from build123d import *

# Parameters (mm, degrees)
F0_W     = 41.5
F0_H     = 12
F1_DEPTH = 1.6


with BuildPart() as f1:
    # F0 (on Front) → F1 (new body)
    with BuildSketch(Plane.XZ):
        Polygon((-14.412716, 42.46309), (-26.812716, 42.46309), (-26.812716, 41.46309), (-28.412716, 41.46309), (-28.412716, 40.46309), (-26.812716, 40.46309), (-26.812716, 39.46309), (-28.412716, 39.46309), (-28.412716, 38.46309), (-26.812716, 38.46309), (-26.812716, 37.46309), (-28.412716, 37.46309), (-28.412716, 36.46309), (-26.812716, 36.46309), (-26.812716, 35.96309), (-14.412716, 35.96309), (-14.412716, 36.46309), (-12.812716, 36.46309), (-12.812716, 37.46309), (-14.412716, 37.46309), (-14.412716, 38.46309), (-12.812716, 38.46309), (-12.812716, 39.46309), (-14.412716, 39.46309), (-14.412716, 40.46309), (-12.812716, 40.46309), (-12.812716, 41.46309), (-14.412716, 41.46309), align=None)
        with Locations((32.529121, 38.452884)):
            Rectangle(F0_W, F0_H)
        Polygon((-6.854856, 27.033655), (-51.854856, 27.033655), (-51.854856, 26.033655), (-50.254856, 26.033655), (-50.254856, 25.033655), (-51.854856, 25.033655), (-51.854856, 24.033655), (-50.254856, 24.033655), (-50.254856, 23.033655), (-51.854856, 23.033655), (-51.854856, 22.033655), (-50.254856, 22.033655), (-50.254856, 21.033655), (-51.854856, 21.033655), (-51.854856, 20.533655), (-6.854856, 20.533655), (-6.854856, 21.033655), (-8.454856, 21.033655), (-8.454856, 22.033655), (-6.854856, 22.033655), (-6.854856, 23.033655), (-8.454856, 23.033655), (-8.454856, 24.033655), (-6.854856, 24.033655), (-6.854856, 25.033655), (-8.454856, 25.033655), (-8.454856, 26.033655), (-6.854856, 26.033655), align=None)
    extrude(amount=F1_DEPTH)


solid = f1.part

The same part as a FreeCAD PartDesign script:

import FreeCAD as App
import Part
import Sketcher

V = App.Vector

doc = App.newDocument("Part")
body = doc.addObject("PartDesign::Body", "Body")
body.AllowCompound = True

sketch1 = doc.addObject("Sketcher::SketchObject", "Sketch")
body.addObject(sketch1)
sketch1.AttachmentSupport = (doc.XZ_Plane, [""])
sketch1.MapMode = "FlatFace"
sketch1.addGeometry([
    Part.LineSegment(V(-14.4, 42.5, 0), V(-26.8, 42.5, 0)),
    Part.LineSegment(V(-26.8, 42.5, 0), V(-26.8, 41.5, 0)),
    Part.LineSegment(V(-26.8, 41.5, 0), V(-28.4, 41.5, 0)),
    Part.LineSegment(V(-28.4, 41.5, 0), V(-28.4, 40.5, 0)),
    Part.LineSegment(V(-28.4, 40.5, 0), V(-26.8, 40.5, 0)),
    Part.LineSegment(V(-26.8, 40.5, 0), V(-26.8, 39.5, 0)),
    Part.LineSegment(V(-26.8, 39.5, 0), V(-28.4, 39.5, 0)),
    Part.LineSegment(V(-28.4, 39.5, 0), V(-28.4, 38.5, 0)),
    Part.LineSegment(V(-28.4, 38.5, 0), V(-26.8, 38.5, 0)),
    Part.LineSegment(V(-26.8, 38.5, 0), V(-26.8, 37.5, 0)),
    Part.LineSegment(V(-26.8, 37.5, 0), V(-28.4, 37.5, 0)),
    Part.LineSegment(V(-28.4, 37.5, 0), V(-28.4, 36.5, 0)),
    Part.LineSegment(V(-28.4, 36.5, 0), V(-26.8, 36.5, 0)),
    Part.LineSegment(V(-26.8, 36.5, 0), V(-26.8, 36, 0)),
    Part.LineSegment(V(-26.8, 36, 0), V(-14.4, 36, 0)),
    Part.LineSegment(V(-14.4, 36, 0), V(-14.4, 36.5, 0)),
    Part.LineSegment(V(-14.4, 36.5, 0), V(-12.8, 36.5, 0)),
    Part.LineSegment(V(-12.8, 36.5, 0), V(-12.8, 37.5, 0)),
    Part.LineSegment(V(-12.8, 37.5, 0), V(-14.4, 37.5, 0)),
    Part.LineSegment(V(-14.4, 37.5, 0), V(-14.4, 38.5, 0)),
    Part.LineSegment(V(-14.4, 38.5, 0), V(-12.8, 38.5, 0)),
    Part.LineSegment(V(-12.8, 38.5, 0), V(-12.8, 39.5, 0)),
    Part.LineSegment(V(-12.8, 39.5, 0), V(-14.4, 39.5, 0)),
    Part.LineSegment(V(-14.4, 39.5, 0), V(-14.4, 40.5, 0)),
    Part.LineSegment(V(-14.4, 40.5, 0), V(-12.8, 40.5, 0)),
    Part.LineSegment(V(-12.8, 40.5, 0), V(-12.8, 41.5, 0)),
    Part.LineSegment(V(-12.8, 41.5, 0), V(-14.4, 41.5, 0)),
    Part.LineSegment(V(-14.4, 41.5, 0), V(-14.4, 42.5, 0)),
    Part.LineSegment(V(11.8, 44.5, 0), V(11.8, 32.5, 0)),
    Part.LineSegment(V(11.8, 32.5, 0), V(53.3, 32.5, 0)),
    Part.LineSegment(V(53.3, 32.5, 0), V(53.3, 44.5, 0)),
    Part.LineSegment(V(53.3, 44.5, 0), V(11.8, 44.5, 0)),
    Part.LineSegment(V(-6.9, 27, 0), V(-51.9, 27, 0)),
    Part.LineSegment(V(-51.9, 27, 0), V(-51.9, 26, 0)),
    Part.LineSegment(V(-51.9, 26, 0), V(-50.3, 26, 0)),
    Part.LineSegment(V(-50.3, 26, 0), V(-50.3, 25, 0)),
    Part.LineSegment(V(-50.3, 25, 0), V(-51.9, 25, 0)),
    Part.LineSegment(V(-51.9, 25, 0), V(-51.9, 24, 0)),
    Part.LineSegment(V(-51.9, 24, 0), V(-50.3, 24, 0)),
    Part.LineSegment(V(-50.3, 24, 0), V(-50.3, 23, 0)),
    Part.LineSegment(V(-50.3, 23, 0), V(-51.9, 23, 0)),
    Part.LineSegment(V(-51.9, 23, 0), V(-51.9, 22, 0)),
    Part.LineSegment(V(-51.9, 22, 0), V(-50.3, 22, 0)),
    Part.LineSegment(V(-50.3, 22, 0), V(-50.3, 21, 0)),
    Part.LineSegment(V(-50.3, 21, 0), V(-51.9, 21, 0)),
    Part.LineSegment(V(-51.9, 21, 0), V(-51.9, 20.5, 0)),
    Part.LineSegment(V(-51.9, 20.5, 0), V(-6.9, 20.5, 0)),
    Part.LineSegment(V(-6.9, 20.5, 0), V(-6.9, 21, 0)),
    Part.LineSegment(V(-6.9, 21, 0), V(-8.5, 21, 0)),
    Part.LineSegment(V(-8.5, 21, 0), V(-8.5, 22, 0)),
    Part.LineSegment(V(-8.5, 22, 0), V(-6.9, 22, 0)),
    Part.LineSegment(V(-6.9, 22, 0), V(-6.9, 23, 0)),
    Part.LineSegment(V(-6.9, 23, 0), V(-8.5, 23, 0)),
    Part.LineSegment(V(-8.5, 23, 0), V(-8.5, 24, 0)),
    Part.LineSegment(V(-8.5, 24, 0), V(-6.9, 24, 0)),
    Part.LineSegment(V(-6.9, 24, 0), V(-6.9, 25, 0)),
    Part.LineSegment(V(-6.9, 25, 0), V(-8.5, 25, 0)),
    Part.LineSegment(V(-8.5, 25, 0), V(-8.5, 26, 0)),
    Part.LineSegment(V(-8.5, 26, 0), V(-6.9, 26, 0)),
    Part.LineSegment(V(-6.9, 26, 0), V(-6.9, 27, 0)),
], False)
sketch1.addConstraint([
    Sketcher.Constraint("Coincident", 0, 2, 1, 1),
    Sketcher.Constraint("Coincident", 1, 2, 2, 1),
    Sketcher.Constraint("Coincident", 2, 2, 3, 1),
    Sketcher.Constraint("Coincident", 3, 2, 4, 1),
    Sketcher.Constraint("Coincident", 4, 2, 5, 1),
    Sketcher.Constraint("Coincident", 5, 2, 6, 1),
    Sketcher.Constraint("Coincident", 6, 2, 7, 1),
    Sketcher.Constraint("Coincident", 7, 2, 8, 1),
    Sketcher.Constraint("Coincident", 8, 2, 9, 1),
    Sketcher.Constraint("Coincident", 9, 2, 10, 1),
    Sketcher.Constraint("Coincident", 10, 2, 11, 1),
    Sketcher.Constraint("Coincident", 11, 2, 12, 1),
    Sketcher.Constraint("Coincident", 12, 2, 13, 1),
    Sketcher.Constraint("Coincident", 13, 2, 14, 1),
    Sketcher.Constraint("Coincident", 14, 2, 15, 1),
    Sketcher.Constraint("Coincident", 15, 2, 16, 1),
    Sketcher.Constraint("Coincident", 16, 2, 17, 1),
    Sketcher.Constraint("Coincident", 17, 2, 18, 1),
    Sketcher.Constraint("Coincident", 18, 2, 19, 1),
    Sketcher.Constraint("Coincident", 19, 2, 20, 1),
    Sketcher.Constraint("Coincident", 20, 2, 21, 1),
    Sketcher.Constraint("Coincident", 21, 2, 22, 1),
    Sketcher.Constraint("Coincident", 22, 2, 23, 1),
    Sketcher.Constraint("Coincident", 23, 2, 24, 1),
    Sketcher.Constraint("Coincident", 24, 2, 25, 1),
    Sketcher.Constraint("Coincident", 25, 2, 26, 1),
    Sketcher.Constraint("Coincident", 26, 2, 27, 1),
    Sketcher.Constraint("Coincident", 27, 2, 0, 1),
    Sketcher.Constraint("Coincident", 28, 2, 29, 1),
    Sketcher.Constraint("Coincident", 29, 2, 30, 1),
    Sketcher.Constraint("Coincident", 30, 2, 31, 1),
    Sketcher.Constraint("Coincident", 31, 2, 28, 1),
    Sketcher.Constraint("Coincident", 32, 2, 33, 1),
    Sketcher.Constraint("Coincident", 33, 2, 34, 1),
    Sketcher.Constraint("Coincident", 34, 2, 35, 1),
    Sketcher.Constraint("Coincident", 35, 2, 36, 1),
    Sketcher.Constraint("Coincident", 36, 2, 37, 1),
    Sketcher.Constraint("Coincident", 37, 2, 38, 1),
    Sketcher.Constraint("Coincident", 38, 2, 39, 1),
    Sketcher.Constraint("Coincident", 39, 2, 40, 1),
    Sketcher.Constraint("Coincident", 40, 2, 41, 1),
    Sketcher.Constraint("Coincident", 41, 2, 42, 1),
    Sketcher.Constraint("Coincident", 42, 2, 43, 1),
    Sketcher.Constraint("Coincident", 43, 2, 44, 1),
    Sketcher.Constraint("Coincident", 44, 2, 45, 1),
    Sketcher.Constraint("Coincident", 45, 2, 46, 1),
    Sketcher.Constraint("Coincident", 46, 2, 47, 1),
    Sketcher.Constraint("Coincident", 47, 2, 48, 1),
    Sketcher.Constraint("Coincident", 48, 2, 49, 1),
    Sketcher.Constraint("Coincident", 49, 2, 50, 1),
    Sketcher.Constraint("Coincident", 50, 2, 51, 1),
    Sketcher.Constraint("Coincident", 51, 2, 52, 1),
    Sketcher.Constraint("Coincident", 52, 2, 53, 1),
    Sketcher.Constraint("Coincident", 53, 2, 54, 1),
    Sketcher.Constraint("Coincident", 54, 2, 55, 1),
    Sketcher.Constraint("Coincident", 55, 2, 56, 1),
    Sketcher.Constraint("Coincident", 56, 2, 57, 1),
    Sketcher.Constraint("Coincident", 57, 2, 58, 1),
    Sketcher.Constraint("Coincident", 58, 2, 59, 1),
    Sketcher.Constraint("Coincident", 59, 2, 32, 1),
    Sketcher.Constraint("Horizontal", 0),
    Sketcher.Constraint("Vertical", 1),
    Sketcher.Constraint("Horizontal", 2),
    Sketcher.Constraint("Vertical", 3),
    Sketcher.Constraint("Horizontal", 4),
    Sketcher.Constraint("Vertical", 5),
    Sketcher.Constraint("Horizontal", 6),
    Sketcher.Constraint("Vertical", 7),
    Sketcher.Constraint("Horizontal", 8),
    Sketcher.Constraint("Vertical", 9),
    Sketcher.Constraint("Horizontal", 10),
    Sketcher.Constraint("Vertical", 11),
    Sketcher.Constraint("Horizontal", 12),
    Sketcher.Constraint("Vertical", 13),
    Sketcher.Constraint("Horizontal", 14),
    Sketcher.Constraint("Vertical", 15),
    Sketcher.Constraint("Horizontal", 16),
    Sketcher.Constraint("Vertical", 17),
    Sketcher.Constraint("Horizontal", 18),
    Sketcher.Constraint("Vertical", 19),
    Sketcher.Constraint("Horizontal", 20),
    Sketcher.Constraint("Vertical", 21),
    Sketcher.Constraint("Horizontal", 22),
    Sketcher.Constraint("Vertical", 23),
    Sketcher.Constraint("Horizontal", 24),
    Sketcher.Constraint("Vertical", 25),
    Sketcher.Constraint("Horizontal", 26),
    Sketcher.Constraint("Vertical", 27),
    Sketcher.Constraint("Vertical", 28),
    Sketcher.Constraint("Horizontal", 29),
    Sketcher.Constraint("Vertical", 30),
    Sketcher.Constraint("Horizontal", 31),
    Sketcher.Constraint("Horizontal", 32),
    Sketcher.Constraint("Vertical", 33),
    Sketcher.Constraint("Horizontal", 34),
    Sketcher.Constraint("Vertical", 35),
    Sketcher.Constraint("Horizontal", 36),
    Sketcher.Constraint("Vertical", 37),
    Sketcher.Constraint("Horizontal", 38),
    Sketcher.Constraint("Vertical", 39),
    Sketcher.Constraint("Horizontal", 40),
    Sketcher.Constraint("Vertical", 41),
    Sketcher.Constraint("Horizontal", 42),
    Sketcher.Constraint("Vertical", 43),
    Sketcher.Constraint("Horizontal", 44),
    Sketcher.Constraint("Vertical", 45),
    Sketcher.Constraint("Horizontal", 46),
    Sketcher.Constraint("Vertical", 47),
    Sketcher.Constraint("Horizontal", 48),
    Sketcher.Constraint("Vertical", 49),
    Sketcher.Constraint("Horizontal", 50),
    Sketcher.Constraint("Vertical", 51),
    Sketcher.Constraint("Horizontal", 52),
    Sketcher.Constraint("Vertical", 53),
    Sketcher.Constraint("Horizontal", 54),
    Sketcher.Constraint("Vertical", 55),
    Sketcher.Constraint("Horizontal", 56),
    Sketcher.Constraint("Vertical", 57),
    Sketcher.Constraint("Horizontal", 58),
    Sketcher.Constraint("Vertical", 59),
    Sketcher.Constraint("Horizontal", 12, 2, 15, 2),
    Sketcher.Constraint("Horizontal", 10, 2, 17, 2),
    Sketcher.Constraint("Horizontal", 8, 2, 19, 2),
    Sketcher.Constraint("Horizontal", 6, 2, 21, 2),
    Sketcher.Constraint("Horizontal", 4, 2, 23, 2),
    Sketcher.Constraint("Horizontal", 2, 2, 25, 2),
    Sketcher.Constraint("Horizontal", 44, 2, 47, 2),
    Sketcher.Constraint("Horizontal", 42, 2, 49, 2),
    Sketcher.Constraint("Horizontal", 40, 2, 51, 2),
    Sketcher.Constraint("Horizontal", 38, 2, 53, 2),
    Sketcher.Constraint("Horizontal", 36, 2, 55, 2),
    Sketcher.Constraint("Horizontal", 34, 2, 57, 2),
    Sketcher.Constraint("Vertical", 1, 2, 4, 2),
    Sketcher.Constraint("Vertical", 3, 2, 6, 2),
    Sketcher.Constraint("Vertical", 5, 2, 8, 2),
    Sketcher.Constraint("Vertical", 7, 2, 10, 2),
    Sketcher.Constraint("Vertical", 9, 2, 12, 2),
    Sketcher.Constraint("Vertical", 15, 2, 18, 2),
    Sketcher.Constraint("Vertical", 17, 2, 20, 2),
    Sketcher.Constraint("Vertical", 19, 2, 22, 2),
    Sketcher.Constraint("Vertical", 21, 2, 24, 2),
    Sketcher.Constraint("Vertical", 23, 2, 26, 2),
    Sketcher.Constraint("Vertical", 33, 2, 36, 2),
    Sketcher.Constraint("Vertical", 35, 2, 38, 2),
    Sketcher.Constraint("Vertical", 37, 2, 40, 2),
    Sketcher.Constraint("Vertical", 39, 2, 42, 2),
    Sketcher.Constraint("Vertical", 41, 2, 44, 2),
    Sketcher.Constraint("Vertical", 47, 2, 50, 2),
    Sketcher.Constraint("Vertical", 49, 2, 52, 2),
    Sketcher.Constraint("Vertical", 51, 2, 54, 2),
    Sketcher.Constraint("Vertical", 53, 2, 56, 2),
    Sketcher.Constraint("Vertical", 55, 2, 58, 2),
    Sketcher.Constraint("Equal", 12, 16),
    Sketcher.Constraint("Equal", 26, 34),
    Sketcher.Constraint("Equal", 44, 48),
    Sketcher.Constraint("Equal", 1, 3),
    Sketcher.Constraint("Equal", 3, 5),
    Sketcher.Constraint("Equal", 5, 7),
    Sketcher.Constraint("Equal", 7, 9),
    Sketcher.Constraint("Equal", 9, 11),
    Sketcher.Constraint("Equal", 27, 33),
    Sketcher.Constraint("Equal", 33, 35),
    Sketcher.Constraint("Equal", 35, 37),
    Sketcher.Constraint("Equal", 37, 39),
    Sketcher.Constraint("Equal", 39, 41),
    Sketcher.Constraint("Equal", 41, 43),
    Sketcher.Constraint("Equal", 15, 45),
    Sketcher.Constraint("DistanceX", 32, 2, 32, 1, 45.0),
    Sketcher.Constraint("DistanceY", 1, 2, 1, 1, 1.0),
    Sketcher.Constraint("DistanceY", 28, 2, 28, 1, 12.0),
    Sketcher.Constraint("DistanceX", 0, 2, 0, 1, 12.4),
    Sketcher.Constraint("DistanceX", 2, 2, 2, 1, 1.6),
    Sketcher.Constraint("DistanceX", 29, 1, 29, 2, 41.5),
    Sketcher.Constraint("DistanceY", 13, 2, 13, 1, 0.5),
    Sketcher.Constraint("DistanceY", -1, 1, 0, 2, 42.46309),
    Sketcher.Constraint("DistanceX", -1, 1, 28, 2, 11.779121),
    Sketcher.Constraint("DistanceX", 32, 2, 11, 2, 23.44214),
    Sketcher.Constraint("DistanceX", 0, 2, -1, 1, 26.812716),
    Sketcher.Constraint("DistanceY", -1, 1, 28, 2, 32.452884),
    Sketcher.Constraint("DistanceY", -1, 1, 32, 2, 27.033655),
])
pad1 = doc.addObject("PartDesign::Pad", "Pad")
body.addObject(pad1)
pad1.Profile = sketch1
pad1.Length = 1.6

doc.recompute()
